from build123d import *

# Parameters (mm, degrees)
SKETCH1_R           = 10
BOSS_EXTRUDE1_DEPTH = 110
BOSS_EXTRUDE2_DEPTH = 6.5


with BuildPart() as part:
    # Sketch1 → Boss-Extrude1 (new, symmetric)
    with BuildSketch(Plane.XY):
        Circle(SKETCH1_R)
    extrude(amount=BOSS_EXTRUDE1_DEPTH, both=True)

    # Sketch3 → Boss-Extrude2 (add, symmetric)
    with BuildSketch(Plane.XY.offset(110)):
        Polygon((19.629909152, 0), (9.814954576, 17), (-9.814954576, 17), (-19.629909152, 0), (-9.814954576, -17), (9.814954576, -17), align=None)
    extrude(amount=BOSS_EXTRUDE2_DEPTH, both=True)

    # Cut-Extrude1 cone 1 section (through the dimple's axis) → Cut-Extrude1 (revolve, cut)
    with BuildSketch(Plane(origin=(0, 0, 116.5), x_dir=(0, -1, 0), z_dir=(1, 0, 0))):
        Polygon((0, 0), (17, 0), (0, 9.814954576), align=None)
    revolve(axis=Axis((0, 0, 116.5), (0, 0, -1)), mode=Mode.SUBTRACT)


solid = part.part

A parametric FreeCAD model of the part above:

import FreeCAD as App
import Part
import Sketcher

V = App.Vector
Q = App.Units.Quantity

doc = App.newDocument("Part")
body = doc.addObject("PartDesign::Body", "Body")

sketch1 = doc.addObject("Sketcher::SketchObject", "Sketch")
body.addObject(sketch1)
sketch1.AttachmentSupport = (doc.XY_Plane, [""])
sketch1.MapMode = "FlatFace"
sketch1.addGeometry(Part.Circle(V(0, 0, 0), V(0, 0, 1), 10), False)
sketch1.addConstraint([
    Sketcher.Constraint("Coincident", 0, 3, -1, 1),
    Sketcher.Constraint("Diameter", 0, Q("20 mm")),
])
pad1 = doc.addObject("PartDesign::Pad", "Pad")
body.addObject(pad1)
pad1.Profile = sketch1
pad1.Length = 220
pad1.Midplane = True

sketch2 = doc.addObject("Sketcher::SketchObject", "Sketch001")
body.addObject(sketch2)
sketch2.AttachmentSupport = (doc.XY_Plane, [""])
sketch2.MapMode = "FlatFace"
sketch2.AttachmentOffset = App.Placement(V(0, 0, 110), App.Rotation())
sketch2.addGeometry([
    Part.LineSegment(V(19.629909, 0, 0), V(9.814955, 17, 0)),
    Part.LineSegment(V(9.814955, 17, 0), V(-9.814955, 17, 0)),
    Part.LineSegment(V(-9.814955, 17, 0), V(-19.629909, 0, 0)),
    Part.LineSegment(V(-19.629909, 0, 0), V(-9.814955, -17, 0)),
    Part.LineSegment(V(-9.814955, -17, 0), V(9.814955, -17, 0)),
    Part.LineSegment(V(9.814955, -17, 0), V(19.629909, 0, 0)),
], False)
sketch2.addConstraint([
    Sketcher.Constraint("Coincident", 0, 2, 1, 1),
    Sketcher.Constraint("Coincident", 1, 2, 2, 1),
    Sketcher.Constraint("Coincident", 2, 2, 3, 1),
    Sketcher.Constraint("Coincident", 3, 2, 4, 1),
    Sketcher.Constraint("Coincident", 4, 2, 5, 1),
    Sketcher.Constraint("Coincident", 5, 2, 0, 1),
    Sketcher.Constraint("Horizontal", 1),
    Sketcher.Constraint("Horizontal", 4),
    Sketcher.Constraint("Symmetric", 0, 2, 3, 2, -1, 1),
    Sketcher.Constraint("Symmetric", 2, 2, 5, 2, -1, 1),
    Sketcher.Constraint("PointOnObject", 2, 2, -1),
    Sketcher.Constraint("Parallel", 2, 5),
    Sketcher.Constraint("Vertical", 1, 2, 3, 2),
    Sketcher.Constraint("Angle", 0, Q("120 deg")),
    Sketcher.Constraint("DistanceY", -1, 1, 0, 2, Q("17 mm")),
    Sketcher.Constraint("DistanceX", 1, 2, 1, 1, Q("19.629909 mm")),
])
pad2 = doc.addObject("PartDesign::Pad", "Pad001")
body.addObject(pad2)
pad2.Profile = sketch2
pad2.Length = 13
pad2.Midplane = True

sketch3 = doc.addObject("Sketcher::SketchObject", "Sketch002")
body.addObject(sketch3)
sketch3.AttachmentSupport = (doc.YZ_Plane, [""])
sketch3.MapMode = "FlatFace"
sketch3.addGeometry([
    Part.LineSegment(V(0, 116.5, 0), V(-17, 116.5, 0)),
    Part.LineSegment(V(-17, 116.5, 0), V(0, 106.685045, 0)),
    Part.LineSegment(V(0, 106.685045, 0), V(0, 116.5, 0)),
], False)
sketch3.addConstraint([
    Sketcher.Constraint("Coincident", 0, 2, 1, 1),
    Sketcher.Constraint("Coincident", 1, 2, 2, 1),
    Sketcher.Constraint("Coincident", 2, 2, 0, 1),
    Sketcher.Constraint("Horizontal", 0),
    Sketcher.Constraint("Vertical", 2),
    Sketcher.Constraint("PointOnObject", 1, 2, -2),
    Sketcher.Constraint("DistanceX", 0, 2, 0, 1, Q("17 mm")),
    Sketcher.Constraint("Angle", 1, Q("-30 deg")),
    Sketcher.Constraint("DistanceY", -1, 1, 0, 2, Q("116.5 mm")),
])
groove = doc.addObject("PartDesign::Groove", "Groove")
body.addObject(groove)
groove.Profile = sketch3
groove.ReferenceAxis = (sketch3, ["V_Axis"])
groove.Angle = 360

doc.recompute()
